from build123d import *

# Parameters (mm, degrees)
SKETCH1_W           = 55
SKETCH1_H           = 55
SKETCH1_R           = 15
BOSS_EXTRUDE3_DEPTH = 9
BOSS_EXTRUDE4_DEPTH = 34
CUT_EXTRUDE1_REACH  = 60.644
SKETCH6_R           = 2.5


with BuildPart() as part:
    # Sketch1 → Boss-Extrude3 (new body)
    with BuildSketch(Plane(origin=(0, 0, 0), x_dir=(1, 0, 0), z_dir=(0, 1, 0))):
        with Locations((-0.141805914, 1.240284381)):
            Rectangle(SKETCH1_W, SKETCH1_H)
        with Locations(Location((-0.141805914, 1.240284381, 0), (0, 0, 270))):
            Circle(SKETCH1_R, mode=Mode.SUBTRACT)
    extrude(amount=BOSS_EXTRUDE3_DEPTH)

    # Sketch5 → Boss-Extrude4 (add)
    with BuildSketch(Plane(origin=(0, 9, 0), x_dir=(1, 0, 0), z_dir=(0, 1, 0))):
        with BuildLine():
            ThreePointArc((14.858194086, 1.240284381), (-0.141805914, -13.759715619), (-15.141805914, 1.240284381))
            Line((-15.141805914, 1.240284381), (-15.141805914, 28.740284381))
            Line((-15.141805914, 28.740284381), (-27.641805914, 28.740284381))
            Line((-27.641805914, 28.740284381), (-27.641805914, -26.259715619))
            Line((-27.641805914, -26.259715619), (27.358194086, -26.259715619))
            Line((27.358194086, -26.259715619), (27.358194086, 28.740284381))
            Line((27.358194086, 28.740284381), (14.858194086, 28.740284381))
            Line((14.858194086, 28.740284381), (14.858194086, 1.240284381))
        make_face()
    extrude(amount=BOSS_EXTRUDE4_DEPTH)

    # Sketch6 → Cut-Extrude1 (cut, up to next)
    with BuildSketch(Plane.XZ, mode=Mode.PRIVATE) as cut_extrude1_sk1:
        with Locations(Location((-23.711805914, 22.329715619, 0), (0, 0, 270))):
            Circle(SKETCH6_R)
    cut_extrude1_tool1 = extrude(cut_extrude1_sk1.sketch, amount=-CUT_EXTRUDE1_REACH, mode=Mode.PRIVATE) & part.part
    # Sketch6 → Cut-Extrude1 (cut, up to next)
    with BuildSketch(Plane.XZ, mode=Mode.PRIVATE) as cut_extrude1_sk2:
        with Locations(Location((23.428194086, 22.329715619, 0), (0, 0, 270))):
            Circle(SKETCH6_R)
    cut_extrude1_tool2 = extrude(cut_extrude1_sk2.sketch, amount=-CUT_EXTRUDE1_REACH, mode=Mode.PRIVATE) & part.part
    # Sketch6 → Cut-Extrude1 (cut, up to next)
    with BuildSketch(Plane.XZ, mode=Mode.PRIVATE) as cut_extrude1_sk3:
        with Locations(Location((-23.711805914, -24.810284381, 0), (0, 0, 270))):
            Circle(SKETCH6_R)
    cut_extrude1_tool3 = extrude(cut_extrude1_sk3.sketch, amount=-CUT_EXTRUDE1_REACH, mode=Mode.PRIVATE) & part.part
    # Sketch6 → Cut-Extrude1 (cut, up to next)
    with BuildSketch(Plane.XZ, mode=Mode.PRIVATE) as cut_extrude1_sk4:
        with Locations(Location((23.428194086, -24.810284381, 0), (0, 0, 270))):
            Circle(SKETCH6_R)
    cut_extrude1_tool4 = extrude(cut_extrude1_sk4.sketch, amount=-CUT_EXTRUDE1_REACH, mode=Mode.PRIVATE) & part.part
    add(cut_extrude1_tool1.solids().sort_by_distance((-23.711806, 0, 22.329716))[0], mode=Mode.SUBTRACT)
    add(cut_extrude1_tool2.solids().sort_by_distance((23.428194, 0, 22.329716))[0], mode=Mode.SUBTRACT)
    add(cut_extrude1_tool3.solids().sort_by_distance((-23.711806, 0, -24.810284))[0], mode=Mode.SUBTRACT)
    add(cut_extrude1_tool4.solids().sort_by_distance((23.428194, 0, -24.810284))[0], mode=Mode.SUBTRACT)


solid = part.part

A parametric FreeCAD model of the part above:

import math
import FreeCAD as App
import Part
import Sketcher


def add_polygon(sketch, points):
    """Adds a closed chain of lines whose ends are joined by coincident constraints."""
    first, n = sketch.GeometryCount, len(points)
    for a, b in zip(points, points[1:] + points[:1]):
        sketch.addGeometry(Part.LineSegment(App.Vector(*a, 0), App.Vector(*b, 0)), False)
    for i in range(n):
        sketch.addConstraint(Sketcher.Constraint("Coincident", first + i, 2, first + (i + 1) % n, 1))

doc = App.newDocument("Part")
body = doc.addObject("PartDesign::Body", "Body")

# Sketch on XZ plane
sketch1 = body.newObject("Sketcher::SketchObject", "Sketch")
sketch1.AttachmentSupport = (doc.getObject("XZ_Plane"), [""])
sketch1.MapMode = "FlatFace"
add_polygon(sketch1, [(-27.641806, -28.740284), (-27.641806, 26.259716), (27.358194, 26.259716), (27.358194, -28.740284)])  # lines 0-3
sketch1.addGeometry(Part.Circle(App.Vector(-0.141806, -1.240284, 0), App.Vector(0, 0, 1), 15), False)  # 4
sketch1.addConstraint(Sketcher.Constraint("Vertical", 0))
sketch1.addConstraint(Sketcher.Constraint("Horizontal", 1))
sketch1.addConstraint(Sketcher.Constraint("Vertical", 2))
sketch1.addConstraint(Sketcher.Constraint("Horizontal", 3))
sketch1.addConstraint(Sketcher.Constraint("Equal", 3, 0))
sketch1.addConstraint(Sketcher.Constraint("Diameter", 4, 30.0))
sketch1.addConstraint(Sketcher.Constraint("DistanceX", 1, 1, 1, 2, 55.0))
sketch1.addConstraint(Sketcher.Constraint("DistanceX", 0, 2, 4, 3, 27.5))
sketch1.addConstraint(Sketcher.Constraint("DistanceY", 4, 3, 0, 2, 27.5))
sketch1.addConstraint(Sketcher.Constraint("DistanceX", 4, 3, -1, 1, 0.141806))
sketch1.addConstraint(Sketcher.Constraint("DistanceY", 4, 3, -1, 1, 1.240284))
pad1 = body.newObject("PartDesign::Pad", "Pad")
pad1.Profile = sketch1
pad1.Length = 9
pad1.Reversed = True

# Sketch on XZ plane
sketch2 = body.newObject("Sketcher::SketchObject", "Sketch001")
sketch2.AttachmentSupport = (doc.getObject("XZ_Plane"), [""])
sketch2.MapMode = "FlatFace"
sketch2.AttachmentOffset = App.Placement(App.Vector(0, 0, -9), App.Rotation())
sketch2.addGeometry(Part.ArcOfCircle(Part.Circle(App.Vector(-0.141806, -1.240284, 0), App.Vector(0, 0, 1), 15), math.radians(0), math.radians(180)), False)
sketch2.addGeometry(Part.LineSegment(App.Vector(-15.141806, -1.240284, 0), App.Vector(-15.141806, -28.740284, 0)), False)
sketch2.addGeometry(Part.LineSegment(App.Vector(-15.141806, -28.740284, 0), App.Vector(-27.641806, -28.740284, 0)), False)
sketch2.addGeometry(Part.LineSegment(App.Vector(-27.641806, -28.740284, 0), App.Vector(-27.641806, 26.259716, 0)), False)
sketch2.addGeometry(Part.LineSegment(App.Vector(-27.641806, 26.259716, 0), App.Vector(27.358194, 26.259716, 0)), False)
sketch2.addGeometry(Part.LineSegment(App.Vector(27.358194, 26.259716, 0), App.Vector(27.358194, -28.740284, 0)), False)
sketch2.addGeometry(Part.LineSegment(App.Vector(27.358194, -28.740284, 0), App.Vector(14.858194, -28.740284, 0)), False)
sketch2.addGeometry(Part.LineSegment(App.Vector(14.858194, -28.740284, 0), App.Vector(14.858194, -1.240284, 0)), False)
sketch2.addConstraint(Sketcher.Constraint("Tangent", 0, 2, 1, 1))
sketch2.addConstraint(Sketcher.Constraint("Coincident", 1, 2, 2, 1))
sketch2.addConstraint(Sketcher.Constraint("Coincident", 2, 2, 3, 1))
sketch2.addConstraint(Sketcher.Constraint("Coincident", 3, 2, 4, 1))
sketch2.addConstraint(Sketcher.Constraint("Coincident", 4, 2, 5, 1))
sketch2.addConstraint(Sketcher.Constraint("Coincident", 5, 2, 6, 1))
sketch2.addConstraint(Sketcher.Constraint("Coincident", 6, 2, 7, 1))
sketch2.addConstraint(Sketcher.Constraint("Tangent", 7, 2, 0, 1))
sketch2.addConstraint(Sketcher.Constraint("Vertical", 1))
sketch2.addConstraint(Sketcher.Constraint("Horizontal", 2))
sketch2.addConstraint(Sketcher.Constraint("Vertical", 3))
sketch2.addConstraint(Sketcher.Constraint("Horizontal", 4))
sketch2.addConstraint(Sketcher.Constraint("Vertical", 5))
sketch2.addConstraint(Sketcher.Constraint("Horizontal", 6))
sketch2.addConstraint(Sketcher.Constraint("Vertical", 7))
sketch2.addConstraint(Sketcher.Constraint("Horizontal", 2, 2, 5, 2))
sketch2.addConstraint(Sketcher.Constraint("Equal", 2, 6))
sketch2.addConstraint(Sketcher.Constraint("Equal", 4, 3))
sketch2.addConstraint(Sketcher.Constraint("Radius", 0, 15.0))
sketch2.addConstraint(Sketcher.Constraint("DistanceX", 4, 1, 4, 2, 55.0))
sketch2.addConstraint(Sketcher.Constraint("DistanceY", 1, 2, 1, 1, 27.5))
sketch2.addConstraint(Sketcher.Constraint("DistanceX", 0, 3, -1, 1, 0.141806))
sketch2.addConstraint(Sketcher.Constraint("DistanceY", 0, 3, -1, 1, 1.240284))
pad2 = body.newObject("PartDesign::Pad", "Pad001")
pad2.Profile = sketch2
pad2.Length = 34
pad2.Reversed = True

# Sketch on XZ plane
sketch3 = body.newObject("Sketcher::SketchObject", "Sketch002")
sketch3.AttachmentSupport = (doc.getObject("XZ_Plane"), [""])
sketch3.MapMode = "FlatFace"
sketch3.addGeometry(Part.Circle(App.Vector(-23.711806, 22.329716, 0), App.Vector(0, 0, 1), 2.5), False)
sketch3.addConstraint(Sketcher.Constraint("Diameter", 0, 5.0))
sketch3.addConstraint(Sketcher.Constraint("DistanceX", 0, 3, -1, 1, 23.711806))
sketch3.addConstraint(Sketcher.Constraint("DistanceY", -1, 1, 0, 3, 22.329716))
pocket1 = body.newObject("PartDesign::Pocket", "Pocket")
pocket1.Profile = sketch3
pocket1.Type = "UpToFirst"

# Sketch on XZ plane
sketch4 = body.newObject("Sketcher::SketchObject", "Sketch003")
sketch4.AttachmentSupport = (doc.getObject("XZ_Plane"), [""])
sketch4.MapMode = "FlatFace"
sketch4.addGeometry(Part.Circle(App.Vector(23.428194, 22.329716, 0), App.Vector(0, 0, 1), 2.5), False)
sketch4.addConstraint(Sketcher.Constraint("Diameter", 0, 5.0))
sketch4.addConstraint(Sketcher.Constraint("DistanceX", -1, 1, 0, 3, 23.428194))
sketch4.addConstraint(Sketcher.Constraint("DistanceY", -1, 1, 0, 3, 22.329716))
pocket2 = body.newObject("PartDesign::Pocket", "Pocket001")
pocket2.Profile = sketch4
pocket2.Type = "UpToFirst"

# Sketch on XZ plane
sketch5 = body.newObject("Sketcher::SketchObject", "Sketch004")
sketch5.AttachmentSupport = (doc.getObject("XZ_Plane"), [""])
sketch5.MapMode = "FlatFace"
sketch5.addGeometry(Part.Circle(App.Vector(-23.711806, -24.810284, 0), App.Vector(0, 0, 1), 2.5), False)
sketch5.addConstraint(Sketcher.Constraint("Diameter", 0, 5.0))
sketch5.addConstraint(Sketcher.Constraint("DistanceX", 0, 3, -1, 1, 23.711806))
sketch5.addConstraint(Sketcher.Constraint("DistanceY", 0, 3, -1, 1, 24.810284))
pocket3 = body.newObject("PartDesign::Pocket", "Pocket002")
pocket3.Profile = sketch5
pocket3.Type = "UpToFirst"

# Sketch on XZ plane
sketch6 = body.newObject("Sketcher::SketchObject", "Sketch005")
sketch6.AttachmentSupport = (doc.getObject("XZ_Plane"), [""])
sketch6.MapMode = "FlatFace"
sketch6.addGeometry(Part.Circle(App.Vector(23.428194, -24.810284, 0), App.Vector(0, 0, 1), 2.5), False)
sketch6.addConstraint(Sketcher.Constraint("Diameter", 0, 5.0))
sketch6.addConstraint(Sketcher.Constraint("DistanceX", -1, 1, 0, 3, 23.428194))
sketch6.addConstraint(Sketcher.Constraint("DistanceY", 0, 3, -1, 1, 24.810284))
pocket4 = body.newObject("PartDesign::Pocket", "Pocket003")
pocket4.Profile = sketch6
pocket4.Type = "UpToFirst"

doc.recompute()
